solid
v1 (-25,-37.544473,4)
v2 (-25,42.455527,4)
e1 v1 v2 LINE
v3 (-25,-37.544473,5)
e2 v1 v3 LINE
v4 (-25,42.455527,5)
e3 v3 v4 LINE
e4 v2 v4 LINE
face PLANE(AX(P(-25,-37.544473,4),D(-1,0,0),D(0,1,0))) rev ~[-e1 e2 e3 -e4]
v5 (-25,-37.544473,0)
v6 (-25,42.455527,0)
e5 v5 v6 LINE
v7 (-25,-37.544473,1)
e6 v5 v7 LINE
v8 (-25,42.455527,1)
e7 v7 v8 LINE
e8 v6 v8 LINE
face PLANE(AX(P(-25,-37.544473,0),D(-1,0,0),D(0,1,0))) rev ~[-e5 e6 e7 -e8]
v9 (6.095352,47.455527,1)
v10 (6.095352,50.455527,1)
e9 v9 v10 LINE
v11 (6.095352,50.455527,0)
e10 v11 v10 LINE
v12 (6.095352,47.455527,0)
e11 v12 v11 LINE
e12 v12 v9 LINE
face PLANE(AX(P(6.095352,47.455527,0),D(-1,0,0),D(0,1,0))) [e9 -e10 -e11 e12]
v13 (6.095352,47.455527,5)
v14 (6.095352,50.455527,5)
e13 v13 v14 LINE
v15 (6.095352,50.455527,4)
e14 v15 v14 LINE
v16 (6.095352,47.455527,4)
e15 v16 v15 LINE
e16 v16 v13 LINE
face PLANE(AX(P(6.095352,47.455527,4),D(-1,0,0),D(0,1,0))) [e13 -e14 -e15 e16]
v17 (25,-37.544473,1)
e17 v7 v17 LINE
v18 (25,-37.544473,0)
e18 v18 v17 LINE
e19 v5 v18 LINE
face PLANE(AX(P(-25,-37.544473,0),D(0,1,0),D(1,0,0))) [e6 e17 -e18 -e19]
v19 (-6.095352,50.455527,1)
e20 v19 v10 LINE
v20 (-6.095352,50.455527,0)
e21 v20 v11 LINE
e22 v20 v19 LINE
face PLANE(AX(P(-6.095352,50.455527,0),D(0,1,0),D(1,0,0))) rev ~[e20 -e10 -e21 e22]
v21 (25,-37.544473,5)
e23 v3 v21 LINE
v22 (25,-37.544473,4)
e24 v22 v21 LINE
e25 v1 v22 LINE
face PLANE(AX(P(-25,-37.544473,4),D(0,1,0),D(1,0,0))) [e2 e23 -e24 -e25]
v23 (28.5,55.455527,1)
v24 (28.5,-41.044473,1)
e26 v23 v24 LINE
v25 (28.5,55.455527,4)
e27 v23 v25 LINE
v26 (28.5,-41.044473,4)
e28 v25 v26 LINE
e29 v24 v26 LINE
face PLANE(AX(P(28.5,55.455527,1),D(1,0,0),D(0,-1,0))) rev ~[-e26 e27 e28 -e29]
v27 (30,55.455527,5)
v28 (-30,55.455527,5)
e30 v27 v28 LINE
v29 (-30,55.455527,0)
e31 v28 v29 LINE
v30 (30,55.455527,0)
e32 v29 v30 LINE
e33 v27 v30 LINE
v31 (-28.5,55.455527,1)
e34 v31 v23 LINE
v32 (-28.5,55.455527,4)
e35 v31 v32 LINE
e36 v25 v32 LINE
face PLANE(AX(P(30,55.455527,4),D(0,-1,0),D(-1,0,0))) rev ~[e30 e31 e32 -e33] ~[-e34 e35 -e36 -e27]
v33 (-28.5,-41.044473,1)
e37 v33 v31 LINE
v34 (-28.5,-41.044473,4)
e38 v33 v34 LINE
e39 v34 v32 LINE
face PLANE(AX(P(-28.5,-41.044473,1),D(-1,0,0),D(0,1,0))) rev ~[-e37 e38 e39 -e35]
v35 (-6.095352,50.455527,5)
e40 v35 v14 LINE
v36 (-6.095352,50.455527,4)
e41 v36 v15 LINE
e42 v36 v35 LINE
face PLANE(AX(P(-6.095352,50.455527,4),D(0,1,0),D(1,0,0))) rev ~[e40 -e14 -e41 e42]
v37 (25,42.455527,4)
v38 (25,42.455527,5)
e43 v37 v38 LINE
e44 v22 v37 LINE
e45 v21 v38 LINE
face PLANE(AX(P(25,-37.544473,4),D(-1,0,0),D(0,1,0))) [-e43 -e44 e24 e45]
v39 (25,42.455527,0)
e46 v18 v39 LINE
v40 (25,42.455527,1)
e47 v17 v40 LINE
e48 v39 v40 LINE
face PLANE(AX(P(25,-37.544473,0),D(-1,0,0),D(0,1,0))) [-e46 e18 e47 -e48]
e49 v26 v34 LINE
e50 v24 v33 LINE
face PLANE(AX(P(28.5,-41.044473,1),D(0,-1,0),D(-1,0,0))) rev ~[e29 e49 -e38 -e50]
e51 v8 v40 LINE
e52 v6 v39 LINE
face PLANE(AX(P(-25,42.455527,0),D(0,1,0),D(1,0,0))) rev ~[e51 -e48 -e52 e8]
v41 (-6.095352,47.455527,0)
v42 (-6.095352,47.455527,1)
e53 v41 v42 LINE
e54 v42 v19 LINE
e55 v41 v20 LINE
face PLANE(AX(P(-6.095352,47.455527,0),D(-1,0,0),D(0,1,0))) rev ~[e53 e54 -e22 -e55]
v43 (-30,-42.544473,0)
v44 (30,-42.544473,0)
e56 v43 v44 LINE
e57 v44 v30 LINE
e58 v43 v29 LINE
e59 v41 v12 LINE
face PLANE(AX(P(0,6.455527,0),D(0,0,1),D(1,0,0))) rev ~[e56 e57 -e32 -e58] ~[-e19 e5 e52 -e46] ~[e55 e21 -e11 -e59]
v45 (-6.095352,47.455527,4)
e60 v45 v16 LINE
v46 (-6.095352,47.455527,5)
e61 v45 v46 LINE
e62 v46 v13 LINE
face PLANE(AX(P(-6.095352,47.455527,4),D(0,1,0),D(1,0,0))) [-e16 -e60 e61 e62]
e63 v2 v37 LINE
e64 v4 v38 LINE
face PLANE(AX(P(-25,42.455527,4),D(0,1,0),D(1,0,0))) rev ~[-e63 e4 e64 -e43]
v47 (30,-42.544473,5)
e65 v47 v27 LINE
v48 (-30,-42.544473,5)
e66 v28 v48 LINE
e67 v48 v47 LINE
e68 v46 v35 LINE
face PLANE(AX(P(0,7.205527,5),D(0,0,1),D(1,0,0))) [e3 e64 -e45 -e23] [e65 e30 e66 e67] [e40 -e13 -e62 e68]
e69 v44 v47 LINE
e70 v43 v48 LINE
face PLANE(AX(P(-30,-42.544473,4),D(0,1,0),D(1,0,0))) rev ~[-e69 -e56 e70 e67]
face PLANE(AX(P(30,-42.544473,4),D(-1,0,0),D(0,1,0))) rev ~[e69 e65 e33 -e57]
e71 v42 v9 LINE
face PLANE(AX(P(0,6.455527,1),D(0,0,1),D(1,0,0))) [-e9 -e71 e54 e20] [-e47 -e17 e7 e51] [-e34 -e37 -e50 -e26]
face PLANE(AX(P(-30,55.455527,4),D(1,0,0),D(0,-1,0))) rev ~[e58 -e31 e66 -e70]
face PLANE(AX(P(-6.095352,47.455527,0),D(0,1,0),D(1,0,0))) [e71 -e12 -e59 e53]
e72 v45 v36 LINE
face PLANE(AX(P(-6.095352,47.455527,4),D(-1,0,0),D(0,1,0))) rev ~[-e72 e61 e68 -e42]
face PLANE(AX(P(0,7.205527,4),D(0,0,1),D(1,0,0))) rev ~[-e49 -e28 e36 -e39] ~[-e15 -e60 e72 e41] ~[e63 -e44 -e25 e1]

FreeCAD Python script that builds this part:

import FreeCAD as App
import Part
import Sketcher


def add_polygon(sketch, points):
    """Adds a closed chain of lines whose ends are joined by coincident constraints."""
    first, n = sketch.GeometryCount, len(points)
    for a, b in zip(points, points[1:] + points[:1]):
        sketch.addGeometry(Part.LineSegment(App.Vector(*a, 0), App.Vector(*b, 0)), False)
    for i in range(n):
        sketch.addConstraint(Sketcher.Constraint("Coincident", first + i, 2, first + (i + 1) % n, 1))

doc = App.newDocument("Part")
body = doc.addObject("PartDesign::Body", "Body")

sketch1 = doc.addObject("Sketcher::SketchObject", "Sketch")
body.addObject(sketch1)
sketch1.AttachmentSupport = (doc.XY_Plane, [""])
sketch1.MapMode = "FlatFace"
add_polygon(sketch1, [(-30, 55.5), (-30, -42.5), (30, -42.5), (30, 55.5)])
add_polygon(sketch1, [(25, -37.5), (-25, -37.5), (-25, 42.5), (25, 42.5)])
add_polygon(sketch1, [(6.1, 47.5), (-6.1, 47.5), (-6.1, 50.5), (6.1, 50.5)])
sketch1.addConstraint([
    Sketcher.Constraint("Vertical", 0),
    Sketcher.Constraint("Horizontal", 1),
    Sketcher.Constraint("Vertical", 2),
    Sketcher.Constraint("Horizontal", 3),
    Sketcher.Constraint("Horizontal", 4),
    Sketcher.Constraint("Vertical", 5),
    Sketcher.Constraint("Horizontal", 6),
    Sketcher.Constraint("Vertical", 7),
    Sketcher.Constraint("Horizontal", 8),
    Sketcher.Constraint("Vertical", 9),
    Sketcher.Constraint("Horizontal", 10),
    Sketcher.Constraint("Vertical", 11),
    Sketcher.Constraint("DistanceX", 1, 1, 1, 2, 60.0),
    Sketcher.Constraint("DistanceX", 4, 2, 4, 1, 50.0),
    Sketcher.Constraint("DistanceY", 0, 2, 0, 1, 98.0),
    Sketcher.Constraint("DistanceY", 5, 1, 5, 2, 80.0),
    Sketcher.Constraint("DistanceY", 9, 1, 9, 2, 3.0),
    Sketcher.Constraint("DistanceX", 0, 2, -1, 1, 30.0),
    Sketcher.Constraint("DistanceX", 4, 2, -1, 1, 25.0),
    Sketcher.Constraint("DistanceY", 0, 2, 4, 2, 5.0),
    Sketcher.Constraint("DistanceY", 5, 2, 8, 2, 5.0),
    Sketcher.Constraint("DistanceX", 8, 2, 8, 1, 12.190704),
    Sketcher.Constraint("DistanceX", 5, 2, 8, 2, 18.904648),
    Sketcher.Constraint("DistanceY", 0, 2, -1, 1, 42.544473),
])
pad1 = doc.addObject("PartDesign::Pad", "Pad")
body.addObject(pad1)
pad1.Profile = sketch1
pad1.Length = 1

sketch2 = doc.addObject("Sketcher::SketchObject", "Sketch001")
body.addObject(sketch2)
sketch2.AttachmentSupport = (doc.XY_Plane, [""])
sketch2.MapMode = "FlatFace"
sketch2.AttachmentOffset = App.Placement(App.Vector(0, 0, 1), App.Rotation())
add_polygon(sketch2, [(-28.5, 55.5), (-30, 55.5), (-30, -42.5), (30, -42.5), (30, 55.5), (28.5, 55.5), (28.5, -41), (-28.5, -41)])
sketch2.addConstraint([
    Sketcher.Constraint("Horizontal", 0),
    Sketcher.Constraint("Vertical", 1),
    Sketcher.Constraint("Horizontal", 2),
    Sketcher.Constraint("Vertical", 3),
    Sketcher.Constraint("Horizontal", 4),
    Sketcher.Constraint("Vertical", 5),
    Sketcher.Constraint("Horizontal", 6),
    Sketcher.Constraint("Vertical", 7),
    Sketcher.Constraint("Symmetric", 0, 2, 3, 2, -2),
    Sketcher.Constraint("Equal", 0, 4),
    Sketcher.Constraint("DistanceX", 2, 1, 2, 2, 60.0),
    Sketcher.Constraint("DistanceX", 6, 2, 6, 1, 57.0),
    Sketcher.Constraint("DistanceY", 1, 2, 1, 1, 98.0),
    Sketcher.Constraint("DistanceY", 5, 2, 5, 1, 96.5),
    Sketcher.Constraint("DistanceY", -1, 1, 0, 2, 55.455527),
])
pad2 = doc.addObject("PartDesign::Pad", "Pad001")
body.addObject(pad2)
pad2.Profile = sketch2
pad2.Length = 3

sketch3 = doc.addObject("Sketcher::SketchObject", "Sketch002")
body.addObject(sketch3)
sketch3.AttachmentSupport = (doc.XY_Plane, [""])
sketch3.MapMode = "FlatFace"
sketch3.AttachmentOffset = App.Placement(App.Vector(0, 0, 4), App.Rotation())
add_polygon(sketch3, [(-30, 55.5), (-30, -42.5), (30, -42.5), (30, 55.5)])
add_polygon(sketch3, [(25, -37.5), (-25, -37.5), (-25, 42.5), (25, 42.5)])
add_polygon(sketch3, [(6.1, 47.5), (-6.1, 47.5), (-6.1, 50.5), (6.1, 50.5)])
sketch3.addConstraint([
    Sketcher.Constraint("Vertical", 0),
    Sketcher.Constraint("Horizontal", 1),
    Sketcher.Constraint("Vertical", 2),
    Sketcher.Constraint("Horizontal", 3),
    Sketcher.Constraint("Horizontal", 4),
    Sketcher.Constraint("Vertical", 5),
    Sketcher.Constraint("Horizontal", 6),
    Sketcher.Constraint("Vertical", 7),
    Sketcher.Constraint("Horizontal", 8),
    Sketcher.Constraint("Vertical", 9),
    Sketcher.Constraint("Horizontal", 10),
    Sketcher.Constraint("Vertical", 11),
    Sketcher.Constraint("DistanceX", 1, 1, 1, 2, 60.0),
    Sketcher.Constraint("DistanceX", 4, 2, 4, 1, 50.0),
    Sketcher.Constraint("DistanceY", 0, 2, 0, 1, 98.0),
    Sketcher.Constraint("DistanceY", 5, 1, 5, 2, 80.0),
    Sketcher.Constraint("DistanceY", 9, 1, 9, 2, 3.0),
    Sketcher.Constraint("DistanceX", 0, 2, -1, 1, 30.0),
    Sketcher.Constraint("DistanceX", 4, 2, -1, 1, 25.0),
    Sketcher.Constraint("DistanceY", 0, 2, 4, 2, 5.0),
    Sketcher.Constraint("DistanceY", 5, 2, 8, 2, 5.0),
    Sketcher.Constraint("DistanceX", 8, 2, 8, 1, 12.190704),
    Sketcher.Constraint("DistanceX", 5, 2, 8, 2, 18.904648),
    Sketcher.Constraint("DistanceY", 0, 2, -1, 1, 42.544473),
])
pad3 = doc.addObject("PartDesign::Pad", "Pad002")
body.addObject(pad3)
pad3.Profile = sketch3
pad3.Length = 1

doc.recompute()
